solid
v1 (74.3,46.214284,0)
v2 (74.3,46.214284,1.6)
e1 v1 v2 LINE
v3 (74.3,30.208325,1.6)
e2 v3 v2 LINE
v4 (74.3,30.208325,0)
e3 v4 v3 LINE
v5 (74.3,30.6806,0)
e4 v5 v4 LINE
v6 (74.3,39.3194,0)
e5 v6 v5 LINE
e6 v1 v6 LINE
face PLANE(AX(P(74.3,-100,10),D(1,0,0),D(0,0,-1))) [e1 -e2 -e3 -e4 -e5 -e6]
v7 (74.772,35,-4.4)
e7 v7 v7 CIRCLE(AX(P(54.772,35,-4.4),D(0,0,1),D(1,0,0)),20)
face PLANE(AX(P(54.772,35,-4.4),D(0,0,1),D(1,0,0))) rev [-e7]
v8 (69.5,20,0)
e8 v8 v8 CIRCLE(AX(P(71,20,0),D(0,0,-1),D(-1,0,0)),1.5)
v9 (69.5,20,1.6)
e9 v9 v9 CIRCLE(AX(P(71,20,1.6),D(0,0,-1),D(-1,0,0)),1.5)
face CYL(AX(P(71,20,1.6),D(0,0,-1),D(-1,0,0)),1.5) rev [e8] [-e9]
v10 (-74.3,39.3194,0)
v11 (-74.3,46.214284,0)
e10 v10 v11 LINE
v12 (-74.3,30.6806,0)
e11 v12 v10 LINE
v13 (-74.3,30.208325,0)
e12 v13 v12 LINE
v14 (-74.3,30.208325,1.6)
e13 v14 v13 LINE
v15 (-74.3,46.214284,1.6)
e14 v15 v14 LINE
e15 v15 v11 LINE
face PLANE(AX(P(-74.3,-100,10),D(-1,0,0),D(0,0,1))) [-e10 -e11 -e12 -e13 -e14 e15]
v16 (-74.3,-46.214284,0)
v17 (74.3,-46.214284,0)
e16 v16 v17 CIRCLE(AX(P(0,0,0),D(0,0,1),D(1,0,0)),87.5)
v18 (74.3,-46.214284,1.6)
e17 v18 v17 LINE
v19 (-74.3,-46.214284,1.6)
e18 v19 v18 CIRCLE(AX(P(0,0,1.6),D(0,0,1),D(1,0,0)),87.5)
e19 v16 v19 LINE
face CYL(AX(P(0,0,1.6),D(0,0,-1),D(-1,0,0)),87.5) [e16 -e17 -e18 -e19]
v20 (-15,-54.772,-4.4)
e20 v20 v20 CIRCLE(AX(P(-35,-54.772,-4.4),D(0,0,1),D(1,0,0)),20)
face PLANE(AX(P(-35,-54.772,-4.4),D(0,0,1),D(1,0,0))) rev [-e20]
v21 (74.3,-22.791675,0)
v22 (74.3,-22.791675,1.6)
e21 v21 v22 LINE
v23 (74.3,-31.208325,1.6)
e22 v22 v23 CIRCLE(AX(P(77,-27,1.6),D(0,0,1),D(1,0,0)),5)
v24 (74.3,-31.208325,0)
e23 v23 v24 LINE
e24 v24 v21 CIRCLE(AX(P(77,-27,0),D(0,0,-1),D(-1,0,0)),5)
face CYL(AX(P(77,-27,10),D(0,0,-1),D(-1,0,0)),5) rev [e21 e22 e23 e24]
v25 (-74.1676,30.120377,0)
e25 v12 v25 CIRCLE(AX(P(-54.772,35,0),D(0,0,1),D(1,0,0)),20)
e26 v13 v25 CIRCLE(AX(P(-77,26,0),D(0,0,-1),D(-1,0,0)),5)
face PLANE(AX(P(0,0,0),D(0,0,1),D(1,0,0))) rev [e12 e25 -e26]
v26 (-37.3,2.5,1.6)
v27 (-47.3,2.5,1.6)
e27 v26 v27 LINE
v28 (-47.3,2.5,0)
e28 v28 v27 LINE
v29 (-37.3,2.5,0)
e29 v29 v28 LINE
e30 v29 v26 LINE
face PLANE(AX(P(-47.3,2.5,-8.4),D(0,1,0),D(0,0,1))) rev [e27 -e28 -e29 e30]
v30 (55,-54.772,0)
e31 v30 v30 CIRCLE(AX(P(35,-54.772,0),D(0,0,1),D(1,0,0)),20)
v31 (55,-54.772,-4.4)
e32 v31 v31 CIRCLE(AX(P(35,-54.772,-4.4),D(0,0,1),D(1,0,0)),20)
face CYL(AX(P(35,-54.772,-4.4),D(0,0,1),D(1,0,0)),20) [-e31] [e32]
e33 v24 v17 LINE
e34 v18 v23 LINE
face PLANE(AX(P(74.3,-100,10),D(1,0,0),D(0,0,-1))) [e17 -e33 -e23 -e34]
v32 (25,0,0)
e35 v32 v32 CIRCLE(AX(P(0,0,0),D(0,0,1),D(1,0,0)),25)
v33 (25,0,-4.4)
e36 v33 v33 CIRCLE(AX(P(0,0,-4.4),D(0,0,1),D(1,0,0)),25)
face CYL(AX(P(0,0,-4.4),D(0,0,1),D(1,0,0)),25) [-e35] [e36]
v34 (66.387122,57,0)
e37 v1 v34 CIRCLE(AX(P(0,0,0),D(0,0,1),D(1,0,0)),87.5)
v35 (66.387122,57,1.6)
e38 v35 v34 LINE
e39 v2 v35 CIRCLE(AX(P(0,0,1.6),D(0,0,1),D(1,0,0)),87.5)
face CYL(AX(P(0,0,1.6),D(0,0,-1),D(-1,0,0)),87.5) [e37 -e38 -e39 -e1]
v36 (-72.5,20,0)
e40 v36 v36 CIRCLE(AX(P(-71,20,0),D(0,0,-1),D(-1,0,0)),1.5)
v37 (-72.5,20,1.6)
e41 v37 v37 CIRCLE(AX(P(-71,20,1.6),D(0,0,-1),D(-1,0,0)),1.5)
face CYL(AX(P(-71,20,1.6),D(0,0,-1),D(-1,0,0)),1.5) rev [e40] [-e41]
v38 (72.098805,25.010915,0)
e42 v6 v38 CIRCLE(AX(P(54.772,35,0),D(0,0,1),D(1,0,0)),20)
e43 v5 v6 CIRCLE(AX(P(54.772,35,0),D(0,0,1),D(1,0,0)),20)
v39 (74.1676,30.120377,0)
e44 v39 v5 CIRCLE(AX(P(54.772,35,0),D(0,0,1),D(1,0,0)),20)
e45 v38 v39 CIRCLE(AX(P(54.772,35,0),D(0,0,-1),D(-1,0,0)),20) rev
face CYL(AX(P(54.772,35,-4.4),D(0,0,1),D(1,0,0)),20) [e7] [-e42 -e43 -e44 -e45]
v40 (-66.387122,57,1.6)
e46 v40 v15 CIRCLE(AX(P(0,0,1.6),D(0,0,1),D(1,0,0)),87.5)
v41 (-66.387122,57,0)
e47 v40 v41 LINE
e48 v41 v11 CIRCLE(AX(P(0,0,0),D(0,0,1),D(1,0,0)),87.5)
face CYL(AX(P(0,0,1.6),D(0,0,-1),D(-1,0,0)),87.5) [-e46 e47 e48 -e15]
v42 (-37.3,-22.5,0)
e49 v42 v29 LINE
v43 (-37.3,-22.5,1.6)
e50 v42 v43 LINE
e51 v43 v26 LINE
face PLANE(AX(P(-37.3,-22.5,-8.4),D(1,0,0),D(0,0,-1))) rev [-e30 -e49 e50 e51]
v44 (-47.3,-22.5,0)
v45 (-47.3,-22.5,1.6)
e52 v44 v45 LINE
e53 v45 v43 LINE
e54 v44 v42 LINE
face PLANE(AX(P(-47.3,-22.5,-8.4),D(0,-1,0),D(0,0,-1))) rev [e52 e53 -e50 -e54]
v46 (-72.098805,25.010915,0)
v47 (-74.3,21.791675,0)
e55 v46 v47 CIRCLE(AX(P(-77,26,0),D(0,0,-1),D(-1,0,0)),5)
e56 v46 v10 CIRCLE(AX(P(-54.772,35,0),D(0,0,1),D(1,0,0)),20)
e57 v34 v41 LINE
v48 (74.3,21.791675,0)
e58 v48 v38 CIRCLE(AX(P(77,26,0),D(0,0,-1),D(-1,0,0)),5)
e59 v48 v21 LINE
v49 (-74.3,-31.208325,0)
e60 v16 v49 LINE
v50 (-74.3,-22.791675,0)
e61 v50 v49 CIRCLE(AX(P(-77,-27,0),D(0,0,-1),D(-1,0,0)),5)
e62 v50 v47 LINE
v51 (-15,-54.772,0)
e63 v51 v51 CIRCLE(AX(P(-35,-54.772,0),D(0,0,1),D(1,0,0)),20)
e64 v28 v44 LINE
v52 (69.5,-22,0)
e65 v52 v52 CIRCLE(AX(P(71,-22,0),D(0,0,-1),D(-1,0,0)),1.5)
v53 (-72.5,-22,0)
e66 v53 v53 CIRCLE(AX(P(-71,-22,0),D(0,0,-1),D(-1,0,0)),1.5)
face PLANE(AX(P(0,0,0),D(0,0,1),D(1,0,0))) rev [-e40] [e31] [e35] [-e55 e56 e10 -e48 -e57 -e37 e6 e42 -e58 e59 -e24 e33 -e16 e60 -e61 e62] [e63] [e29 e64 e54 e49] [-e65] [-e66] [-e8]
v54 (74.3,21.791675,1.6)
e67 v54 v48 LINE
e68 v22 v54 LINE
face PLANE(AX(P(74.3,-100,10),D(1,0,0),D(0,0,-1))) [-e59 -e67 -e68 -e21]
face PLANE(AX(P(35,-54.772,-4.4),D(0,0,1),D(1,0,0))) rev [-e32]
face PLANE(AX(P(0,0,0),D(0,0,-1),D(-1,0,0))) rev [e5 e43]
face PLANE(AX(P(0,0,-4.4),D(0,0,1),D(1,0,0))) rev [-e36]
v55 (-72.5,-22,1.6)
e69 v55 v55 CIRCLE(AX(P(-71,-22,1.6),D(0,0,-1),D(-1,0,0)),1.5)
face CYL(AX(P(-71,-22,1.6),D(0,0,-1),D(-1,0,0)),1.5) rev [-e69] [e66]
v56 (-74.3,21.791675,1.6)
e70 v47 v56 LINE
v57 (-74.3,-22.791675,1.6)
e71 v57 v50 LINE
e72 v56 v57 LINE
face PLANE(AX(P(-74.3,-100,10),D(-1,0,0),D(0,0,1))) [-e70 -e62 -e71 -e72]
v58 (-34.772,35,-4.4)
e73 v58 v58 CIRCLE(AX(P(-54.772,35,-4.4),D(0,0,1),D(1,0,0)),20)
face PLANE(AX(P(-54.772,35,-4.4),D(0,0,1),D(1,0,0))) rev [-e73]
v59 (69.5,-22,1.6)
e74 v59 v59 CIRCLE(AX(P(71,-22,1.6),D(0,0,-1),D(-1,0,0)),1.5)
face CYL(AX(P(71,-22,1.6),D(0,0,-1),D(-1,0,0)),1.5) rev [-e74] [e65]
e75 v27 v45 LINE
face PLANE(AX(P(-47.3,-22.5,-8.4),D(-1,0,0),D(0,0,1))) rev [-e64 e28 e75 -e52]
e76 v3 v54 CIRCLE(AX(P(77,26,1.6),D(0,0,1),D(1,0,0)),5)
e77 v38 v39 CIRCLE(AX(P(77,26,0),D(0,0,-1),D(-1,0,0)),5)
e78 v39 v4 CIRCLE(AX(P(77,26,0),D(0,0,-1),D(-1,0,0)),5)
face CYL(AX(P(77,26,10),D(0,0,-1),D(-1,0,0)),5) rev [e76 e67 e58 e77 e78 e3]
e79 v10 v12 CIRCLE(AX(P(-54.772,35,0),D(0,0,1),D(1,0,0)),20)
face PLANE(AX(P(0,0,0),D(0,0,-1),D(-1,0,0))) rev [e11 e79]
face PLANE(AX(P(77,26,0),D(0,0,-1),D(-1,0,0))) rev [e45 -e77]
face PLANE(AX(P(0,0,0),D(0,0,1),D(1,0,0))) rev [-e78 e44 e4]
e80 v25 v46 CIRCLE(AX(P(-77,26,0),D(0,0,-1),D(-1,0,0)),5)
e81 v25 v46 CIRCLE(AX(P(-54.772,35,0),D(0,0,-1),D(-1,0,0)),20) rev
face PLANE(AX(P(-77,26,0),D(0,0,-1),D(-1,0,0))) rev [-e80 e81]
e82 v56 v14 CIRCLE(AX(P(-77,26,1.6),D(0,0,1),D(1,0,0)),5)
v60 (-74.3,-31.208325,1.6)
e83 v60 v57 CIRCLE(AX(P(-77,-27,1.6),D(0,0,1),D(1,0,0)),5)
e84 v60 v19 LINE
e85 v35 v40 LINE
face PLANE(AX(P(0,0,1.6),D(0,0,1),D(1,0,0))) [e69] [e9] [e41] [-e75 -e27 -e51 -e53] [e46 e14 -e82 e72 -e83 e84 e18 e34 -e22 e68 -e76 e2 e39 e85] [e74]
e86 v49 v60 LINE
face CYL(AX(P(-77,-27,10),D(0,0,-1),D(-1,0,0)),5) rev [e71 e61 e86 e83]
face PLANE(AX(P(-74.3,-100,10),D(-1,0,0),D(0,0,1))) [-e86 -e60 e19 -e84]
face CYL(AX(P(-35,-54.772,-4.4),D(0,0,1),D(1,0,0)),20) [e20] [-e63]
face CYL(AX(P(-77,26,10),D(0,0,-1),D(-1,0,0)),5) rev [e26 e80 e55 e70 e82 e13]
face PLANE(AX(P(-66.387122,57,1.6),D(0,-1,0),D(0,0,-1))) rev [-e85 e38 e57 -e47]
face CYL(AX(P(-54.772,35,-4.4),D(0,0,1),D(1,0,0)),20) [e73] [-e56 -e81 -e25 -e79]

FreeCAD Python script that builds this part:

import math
import FreeCAD as App
import Part
import Sketcher
from FreeCAD import Vector


def add_polygon(sketch, points):
    """Adds a closed chain of lines whose ends are joined by coincident constraints."""
    first, n = sketch.GeometryCount, len(points)
    for a, b in zip(points, points[1:] + points[:1]):
        sketch.addGeometry(Part.LineSegment(App.Vector(*a, 0), App.Vector(*b, 0)), False)
    for i in range(n):
        sketch.addConstraint(Sketcher.Constraint("Coincident", first + i, 2, first + (i + 1) % n, 1))

doc = App.newDocument("Part")
body = doc.addObject("PartDesign::Body", "Body")

sketch1 = doc.addObject("Sketcher::SketchObject", "Sketch")
body.addObject(sketch1)
sketch1.AttachmentSupport = (doc.XY_Plane, [""])
sketch1.MapMode = "FlatFace"
sketch1.addGeometry([
    Part.LineSegment(Vector(66, 57, 0), Vector(-66, 57, 0)),
    Part.ArcOfCircle(Part.Circle(Vector(0, 0, 0), Vector(0, 0, 1), 88), math.radians(139), math.radians(401)),
    Part.Circle(Vector(35, -55, 0), Vector(0, 0, 1), 20),
    Part.Circle(Vector(-35, -55, 0), Vector(0, 0, 1), 20),
    Part.Circle(Vector(55, 35, 0), Vector(0, 0, 1), 20),
    Part.Circle(Vector(0, 0, 0), Vector(0, 0, 1), 25),
    Part.Circle(Vector(-55, 35, 0), Vector(0, 0, 1), 20),
], False)
sketch1.addConstraint([
    Sketcher.Constraint("Coincident", 0, 1, 1, 2),
    Sketcher.Constraint("Coincident", 1, 1, 0, 2),
    Sketcher.Constraint("Horizontal", 0),
    Sketcher.Constraint("Coincident", 1, 3, -1, 1),
    Sketcher.Constraint("Coincident", 5, 3, -1, 1),
    Sketcher.Constraint("Equal", 2, 3),
    Sketcher.Constraint("Equal", 3, 4),
    Sketcher.Constraint("Equal", 4, 6),
    Sketcher.Constraint("Symmetric", 2, 3, 3, 3, -2),
    Sketcher.Constraint("Symmetric", 4, 3, 6, 3, -2),
    Sketcher.Constraint("Diameter", 2, 40.0),
    Sketcher.Constraint("Diameter", 5, 50.0),
    Sketcher.Constraint("Radius", 1, 87.5),
    Sketcher.Constraint("DistanceX", -1, 1, 2, 3, 35.0),
    Sketcher.Constraint("DistanceY", -1, 1, 4, 3, 35.0),
    Sketcher.Constraint("DistanceY", -1, 1, 0, 1, 57.0),
    Sketcher.Constraint("DistanceY", 2, 3, -1, 1, 54.772),
    Sketcher.Constraint("DistanceX", -1, 1, 4, 3, 54.772),
])
pad1 = doc.addObject("PartDesign::Pad", "Pad")
body.addObject(pad1)
pad1.Profile = sketch1
pad1.Length = 1.6

sketch2 = doc.addObject("Sketcher::SketchObject", "Sketch001")
body.addObject(sketch2)
sketch2.AttachmentSupport = (doc.XY_Plane, [""])
sketch2.MapMode = "FlatFace"
sketch2.AttachmentOffset = App.Placement(Vector(0, 0, -4.4), App.Rotation())
sketch2.addGeometry([
    Part.Circle(Vector(-55, 35, 0), Vector(0, 0, 1), 20),
    Part.Circle(Vector(0, 0, 0), Vector(0, 0, 1), 25),
    Part.Circle(Vector(55, 35, 0), Vector(0, 0, 1), 20),
    Part.Circle(Vector(-35, -55, 0), Vector(0, 0, 1), 20),
    Part.Circle(Vector(35, -55, 0), Vector(0, 0, 1), 20),
], False)
sketch2.addConstraint([
    Sketcher.Constraint("Coincident", 1, 3, -1, 1),
    Sketcher.Constraint("Equal", 0, 2),
    Sketcher.Constraint("Equal", 2, 3),
    Sketcher.Constraint("Equal", 3, 4),
    Sketcher.Constraint("Symmetric", 0, 3, 2, 3, -2),
    Sketcher.Constraint("Symmetric", 3, 3, 4, 3, -2),
    Sketcher.Constraint("Diameter", 0, 40.0),
    Sketcher.Constraint("Diameter", 1, 50.0),
    Sketcher.Constraint("DistanceY", -1, 1, 0, 3, 35.0),
    Sketcher.Constraint("DistanceX", 3, 3, -1, 1, 35.0),
    Sketcher.Constraint("DistanceX", 0, 3, -1, 1, 54.772),
    Sketcher.Constraint("DistanceY", 3, 3, -1, 1, 54.772),
])
pad2 = doc.addObject("PartDesign::Pad", "Pad001")
body.addObject(pad2)
pad2.Profile = sketch2
pad2.Length = 6

sketch3 = doc.addObject("Sketcher::SketchObject", "Sketch002")
body.addObject(sketch3)
sketch3.AttachmentSupport = (doc.XY_Plane, [""])
sketch3.MapMode = "FlatFace"
add_polygon(sketch3, [(111, 81), (111, -111), (-111, -111), (-111, 81), (-74, 81), (-74, -100), (74, -100), (74, 81)])
sketch3.addConstraint([
    Sketcher.Constraint("Vertical", 0),
    Sketcher.Constraint("Horizontal", 1),
    Sketcher.Constraint("Vertical", 2),
    Sketcher.Constraint("Horizontal", 3),
    Sketcher.Constraint("Vertical", 4),
    Sketcher.Constraint("Horizontal", 5),
    Sketcher.Constraint("Vertical", 6),
    Sketcher.Constraint("Horizontal", 7),
    Sketcher.Constraint("Symmetric", 3, 2, 6, 2, -2),
    Sketcher.Constraint("Equal", 3, 7),
    Sketcher.Constraint("DistanceX", 5, 1, 5, 2, 148.6),
    Sketcher.Constraint("DistanceY", 4, 2, -1, 1, 100.0),
    Sketcher.Constraint("DistanceX", 1, 2, 1, 1, 222.406),
    Sketcher.Constraint("DistanceY", 0, 2, 0, 1, 191.906),
    Sketcher.Constraint("DistanceY", 4, 2, 4, 1, 180.703),
])
pocket1 = doc.addObject("PartDesign::Pocket", "Pocket")
body.addObject(pocket1)
pocket1.Profile = sketch3
pocket1.Length = 10
pocket1.Reversed = True

sketch4 = doc.addObject("Sketcher::SketchObject", "Sketch003")
body.addObject(sketch4)
sketch4.AttachmentSupport = (doc.XY_Plane, [""])
sketch4.MapMode = "FlatFace"
sketch4.addGeometry([
    Part.Circle(Vector(77, -27, 0), Vector(0, 0, 1), 5),
    Part.Circle(Vector(77, 26, 0), Vector(0, 0, 1), 5),
    Part.Circle(Vector(-77, 26, 0), Vector(0, 0, 1), 5),
    Part.Circle(Vector(-77, -27, 0), Vector(0, 0, 1), 5),
], False)
sketch4.addConstraint([
    Sketcher.Constraint("Equal", 0, 1),
    Sketcher.Constraint("Equal", 1, 2),
    Sketcher.Constraint("Equal", 2, 3),
    Sketcher.Constraint("Symmetric", 1, 3, 2, 3, -2),
    Sketcher.Constraint("Symmetric", 0, 3, 3, 3, -2),
    Sketcher.Constraint("Vertical", 0, 3, 1, 3),
    Sketcher.Constraint("Diameter", 0, 10.0),
    Sketcher.Constraint("DistanceX", -1, 1, 0, 3, 77.0),
    Sketcher.Constraint("DistanceY", 0, 3, -1, 1, 27.0),
    Sketcher.Constraint("DistanceY", -1, 1, 1, 3, 26.0),
])
pocket2 = doc.addObject("PartDesign::Pocket", "Pocket001")
body.addObject(pocket2)
pocket2.Profile = sketch4
pocket2.Length = 10
pocket2.Reversed = True

sketch5 = doc.addObject("Sketcher::SketchObject", "Sketch004")
body.addObject(sketch5)
sketch5.AttachmentSupport = (doc.XY_Plane, [""])
sketch5.MapMode = "FlatFace"
sketch5.AttachmentOffset = App.Placement(Vector(0, 0, 1.6), App.Rotation())
add_polygon(sketch5, [(-47, 2), (-47, -22), (-37, -22), (-37, 2)])
sketch5.addConstraint([
    Sketcher.Constraint("Vertical", 0),
    Sketcher.Constraint("Horizontal", 1),
    Sketcher.Constraint("Vertical", 2),
    Sketcher.Constraint("Horizontal", 3),
    Sketcher.Constraint("DistanceX", 1, 1, 1, 2, 10.0),
    Sketcher.Constraint("DistanceY", 0, 2, 0, 1, 25.0),
    Sketcher.Constraint("DistanceX", 0, 2, -1, 1, 47.3),
    Sketcher.Constraint("DistanceY", 0, 2, -1, 1, 22.5),
])
pocket3 = doc.addObject("PartDesign::Pocket", "Pocket002")
body.addObject(pocket3)
pocket3.Profile = sketch5
pocket3.Length = 10

sketch6 = doc.addObject("Sketcher::SketchObject", "Sketch005")
body.addObject(sketch6)
sketch6.AttachmentSupport = (doc.XY_Plane, [""])
sketch6.MapMode = "FlatFace"
sketch6.addGeometry([
    Part.Circle(Vector(71, 20, 0), Vector(0, 0, 1), 1.5),
    Part.Circle(Vector(71, -22, 0), Vector(0, 0, 1), 1.5),
    Part.Circle(Vector(-71, 20, 0), Vector(0, 0, 1), 1.5),
    Part.Circle(Vector(-71, -22, 0), Vector(0, 0, 1), 1.5),
], False)
sketch6.addConstraint([
    Sketcher.Constraint("Equal", 0, 1),
    Sketcher.Constraint("Equal", 1, 2),
    Sketcher.Constraint("Equal", 2, 3),
    Sketcher.Constraint("Symmetric", 0, 3, 2, 3, -2),
    Sketcher.Constraint("Symmetric", 1, 3, 3, 3, -2),
    Sketcher.Constraint("Vertical", 0, 3, 1, 3),
    Sketcher.Constraint("Diameter", 0, 3.0),
    Sketcher.Constraint("DistanceX", -1, 1, 0, 3, 71.0),
    Sketcher.Constraint("DistanceY", -1, 1, 0, 3, 20.0),
    Sketcher.Constraint("DistanceY", 1, 3, -1, 1, 22.0),
])
pocket4 = doc.addObject("PartDesign::Pocket", "Pocket003")
body.addObject(pocket4)
pocket4.Profile = sketch6
pocket4.Type = "ThroughAll"
pocket4.Reversed = True

doc.recompute()
